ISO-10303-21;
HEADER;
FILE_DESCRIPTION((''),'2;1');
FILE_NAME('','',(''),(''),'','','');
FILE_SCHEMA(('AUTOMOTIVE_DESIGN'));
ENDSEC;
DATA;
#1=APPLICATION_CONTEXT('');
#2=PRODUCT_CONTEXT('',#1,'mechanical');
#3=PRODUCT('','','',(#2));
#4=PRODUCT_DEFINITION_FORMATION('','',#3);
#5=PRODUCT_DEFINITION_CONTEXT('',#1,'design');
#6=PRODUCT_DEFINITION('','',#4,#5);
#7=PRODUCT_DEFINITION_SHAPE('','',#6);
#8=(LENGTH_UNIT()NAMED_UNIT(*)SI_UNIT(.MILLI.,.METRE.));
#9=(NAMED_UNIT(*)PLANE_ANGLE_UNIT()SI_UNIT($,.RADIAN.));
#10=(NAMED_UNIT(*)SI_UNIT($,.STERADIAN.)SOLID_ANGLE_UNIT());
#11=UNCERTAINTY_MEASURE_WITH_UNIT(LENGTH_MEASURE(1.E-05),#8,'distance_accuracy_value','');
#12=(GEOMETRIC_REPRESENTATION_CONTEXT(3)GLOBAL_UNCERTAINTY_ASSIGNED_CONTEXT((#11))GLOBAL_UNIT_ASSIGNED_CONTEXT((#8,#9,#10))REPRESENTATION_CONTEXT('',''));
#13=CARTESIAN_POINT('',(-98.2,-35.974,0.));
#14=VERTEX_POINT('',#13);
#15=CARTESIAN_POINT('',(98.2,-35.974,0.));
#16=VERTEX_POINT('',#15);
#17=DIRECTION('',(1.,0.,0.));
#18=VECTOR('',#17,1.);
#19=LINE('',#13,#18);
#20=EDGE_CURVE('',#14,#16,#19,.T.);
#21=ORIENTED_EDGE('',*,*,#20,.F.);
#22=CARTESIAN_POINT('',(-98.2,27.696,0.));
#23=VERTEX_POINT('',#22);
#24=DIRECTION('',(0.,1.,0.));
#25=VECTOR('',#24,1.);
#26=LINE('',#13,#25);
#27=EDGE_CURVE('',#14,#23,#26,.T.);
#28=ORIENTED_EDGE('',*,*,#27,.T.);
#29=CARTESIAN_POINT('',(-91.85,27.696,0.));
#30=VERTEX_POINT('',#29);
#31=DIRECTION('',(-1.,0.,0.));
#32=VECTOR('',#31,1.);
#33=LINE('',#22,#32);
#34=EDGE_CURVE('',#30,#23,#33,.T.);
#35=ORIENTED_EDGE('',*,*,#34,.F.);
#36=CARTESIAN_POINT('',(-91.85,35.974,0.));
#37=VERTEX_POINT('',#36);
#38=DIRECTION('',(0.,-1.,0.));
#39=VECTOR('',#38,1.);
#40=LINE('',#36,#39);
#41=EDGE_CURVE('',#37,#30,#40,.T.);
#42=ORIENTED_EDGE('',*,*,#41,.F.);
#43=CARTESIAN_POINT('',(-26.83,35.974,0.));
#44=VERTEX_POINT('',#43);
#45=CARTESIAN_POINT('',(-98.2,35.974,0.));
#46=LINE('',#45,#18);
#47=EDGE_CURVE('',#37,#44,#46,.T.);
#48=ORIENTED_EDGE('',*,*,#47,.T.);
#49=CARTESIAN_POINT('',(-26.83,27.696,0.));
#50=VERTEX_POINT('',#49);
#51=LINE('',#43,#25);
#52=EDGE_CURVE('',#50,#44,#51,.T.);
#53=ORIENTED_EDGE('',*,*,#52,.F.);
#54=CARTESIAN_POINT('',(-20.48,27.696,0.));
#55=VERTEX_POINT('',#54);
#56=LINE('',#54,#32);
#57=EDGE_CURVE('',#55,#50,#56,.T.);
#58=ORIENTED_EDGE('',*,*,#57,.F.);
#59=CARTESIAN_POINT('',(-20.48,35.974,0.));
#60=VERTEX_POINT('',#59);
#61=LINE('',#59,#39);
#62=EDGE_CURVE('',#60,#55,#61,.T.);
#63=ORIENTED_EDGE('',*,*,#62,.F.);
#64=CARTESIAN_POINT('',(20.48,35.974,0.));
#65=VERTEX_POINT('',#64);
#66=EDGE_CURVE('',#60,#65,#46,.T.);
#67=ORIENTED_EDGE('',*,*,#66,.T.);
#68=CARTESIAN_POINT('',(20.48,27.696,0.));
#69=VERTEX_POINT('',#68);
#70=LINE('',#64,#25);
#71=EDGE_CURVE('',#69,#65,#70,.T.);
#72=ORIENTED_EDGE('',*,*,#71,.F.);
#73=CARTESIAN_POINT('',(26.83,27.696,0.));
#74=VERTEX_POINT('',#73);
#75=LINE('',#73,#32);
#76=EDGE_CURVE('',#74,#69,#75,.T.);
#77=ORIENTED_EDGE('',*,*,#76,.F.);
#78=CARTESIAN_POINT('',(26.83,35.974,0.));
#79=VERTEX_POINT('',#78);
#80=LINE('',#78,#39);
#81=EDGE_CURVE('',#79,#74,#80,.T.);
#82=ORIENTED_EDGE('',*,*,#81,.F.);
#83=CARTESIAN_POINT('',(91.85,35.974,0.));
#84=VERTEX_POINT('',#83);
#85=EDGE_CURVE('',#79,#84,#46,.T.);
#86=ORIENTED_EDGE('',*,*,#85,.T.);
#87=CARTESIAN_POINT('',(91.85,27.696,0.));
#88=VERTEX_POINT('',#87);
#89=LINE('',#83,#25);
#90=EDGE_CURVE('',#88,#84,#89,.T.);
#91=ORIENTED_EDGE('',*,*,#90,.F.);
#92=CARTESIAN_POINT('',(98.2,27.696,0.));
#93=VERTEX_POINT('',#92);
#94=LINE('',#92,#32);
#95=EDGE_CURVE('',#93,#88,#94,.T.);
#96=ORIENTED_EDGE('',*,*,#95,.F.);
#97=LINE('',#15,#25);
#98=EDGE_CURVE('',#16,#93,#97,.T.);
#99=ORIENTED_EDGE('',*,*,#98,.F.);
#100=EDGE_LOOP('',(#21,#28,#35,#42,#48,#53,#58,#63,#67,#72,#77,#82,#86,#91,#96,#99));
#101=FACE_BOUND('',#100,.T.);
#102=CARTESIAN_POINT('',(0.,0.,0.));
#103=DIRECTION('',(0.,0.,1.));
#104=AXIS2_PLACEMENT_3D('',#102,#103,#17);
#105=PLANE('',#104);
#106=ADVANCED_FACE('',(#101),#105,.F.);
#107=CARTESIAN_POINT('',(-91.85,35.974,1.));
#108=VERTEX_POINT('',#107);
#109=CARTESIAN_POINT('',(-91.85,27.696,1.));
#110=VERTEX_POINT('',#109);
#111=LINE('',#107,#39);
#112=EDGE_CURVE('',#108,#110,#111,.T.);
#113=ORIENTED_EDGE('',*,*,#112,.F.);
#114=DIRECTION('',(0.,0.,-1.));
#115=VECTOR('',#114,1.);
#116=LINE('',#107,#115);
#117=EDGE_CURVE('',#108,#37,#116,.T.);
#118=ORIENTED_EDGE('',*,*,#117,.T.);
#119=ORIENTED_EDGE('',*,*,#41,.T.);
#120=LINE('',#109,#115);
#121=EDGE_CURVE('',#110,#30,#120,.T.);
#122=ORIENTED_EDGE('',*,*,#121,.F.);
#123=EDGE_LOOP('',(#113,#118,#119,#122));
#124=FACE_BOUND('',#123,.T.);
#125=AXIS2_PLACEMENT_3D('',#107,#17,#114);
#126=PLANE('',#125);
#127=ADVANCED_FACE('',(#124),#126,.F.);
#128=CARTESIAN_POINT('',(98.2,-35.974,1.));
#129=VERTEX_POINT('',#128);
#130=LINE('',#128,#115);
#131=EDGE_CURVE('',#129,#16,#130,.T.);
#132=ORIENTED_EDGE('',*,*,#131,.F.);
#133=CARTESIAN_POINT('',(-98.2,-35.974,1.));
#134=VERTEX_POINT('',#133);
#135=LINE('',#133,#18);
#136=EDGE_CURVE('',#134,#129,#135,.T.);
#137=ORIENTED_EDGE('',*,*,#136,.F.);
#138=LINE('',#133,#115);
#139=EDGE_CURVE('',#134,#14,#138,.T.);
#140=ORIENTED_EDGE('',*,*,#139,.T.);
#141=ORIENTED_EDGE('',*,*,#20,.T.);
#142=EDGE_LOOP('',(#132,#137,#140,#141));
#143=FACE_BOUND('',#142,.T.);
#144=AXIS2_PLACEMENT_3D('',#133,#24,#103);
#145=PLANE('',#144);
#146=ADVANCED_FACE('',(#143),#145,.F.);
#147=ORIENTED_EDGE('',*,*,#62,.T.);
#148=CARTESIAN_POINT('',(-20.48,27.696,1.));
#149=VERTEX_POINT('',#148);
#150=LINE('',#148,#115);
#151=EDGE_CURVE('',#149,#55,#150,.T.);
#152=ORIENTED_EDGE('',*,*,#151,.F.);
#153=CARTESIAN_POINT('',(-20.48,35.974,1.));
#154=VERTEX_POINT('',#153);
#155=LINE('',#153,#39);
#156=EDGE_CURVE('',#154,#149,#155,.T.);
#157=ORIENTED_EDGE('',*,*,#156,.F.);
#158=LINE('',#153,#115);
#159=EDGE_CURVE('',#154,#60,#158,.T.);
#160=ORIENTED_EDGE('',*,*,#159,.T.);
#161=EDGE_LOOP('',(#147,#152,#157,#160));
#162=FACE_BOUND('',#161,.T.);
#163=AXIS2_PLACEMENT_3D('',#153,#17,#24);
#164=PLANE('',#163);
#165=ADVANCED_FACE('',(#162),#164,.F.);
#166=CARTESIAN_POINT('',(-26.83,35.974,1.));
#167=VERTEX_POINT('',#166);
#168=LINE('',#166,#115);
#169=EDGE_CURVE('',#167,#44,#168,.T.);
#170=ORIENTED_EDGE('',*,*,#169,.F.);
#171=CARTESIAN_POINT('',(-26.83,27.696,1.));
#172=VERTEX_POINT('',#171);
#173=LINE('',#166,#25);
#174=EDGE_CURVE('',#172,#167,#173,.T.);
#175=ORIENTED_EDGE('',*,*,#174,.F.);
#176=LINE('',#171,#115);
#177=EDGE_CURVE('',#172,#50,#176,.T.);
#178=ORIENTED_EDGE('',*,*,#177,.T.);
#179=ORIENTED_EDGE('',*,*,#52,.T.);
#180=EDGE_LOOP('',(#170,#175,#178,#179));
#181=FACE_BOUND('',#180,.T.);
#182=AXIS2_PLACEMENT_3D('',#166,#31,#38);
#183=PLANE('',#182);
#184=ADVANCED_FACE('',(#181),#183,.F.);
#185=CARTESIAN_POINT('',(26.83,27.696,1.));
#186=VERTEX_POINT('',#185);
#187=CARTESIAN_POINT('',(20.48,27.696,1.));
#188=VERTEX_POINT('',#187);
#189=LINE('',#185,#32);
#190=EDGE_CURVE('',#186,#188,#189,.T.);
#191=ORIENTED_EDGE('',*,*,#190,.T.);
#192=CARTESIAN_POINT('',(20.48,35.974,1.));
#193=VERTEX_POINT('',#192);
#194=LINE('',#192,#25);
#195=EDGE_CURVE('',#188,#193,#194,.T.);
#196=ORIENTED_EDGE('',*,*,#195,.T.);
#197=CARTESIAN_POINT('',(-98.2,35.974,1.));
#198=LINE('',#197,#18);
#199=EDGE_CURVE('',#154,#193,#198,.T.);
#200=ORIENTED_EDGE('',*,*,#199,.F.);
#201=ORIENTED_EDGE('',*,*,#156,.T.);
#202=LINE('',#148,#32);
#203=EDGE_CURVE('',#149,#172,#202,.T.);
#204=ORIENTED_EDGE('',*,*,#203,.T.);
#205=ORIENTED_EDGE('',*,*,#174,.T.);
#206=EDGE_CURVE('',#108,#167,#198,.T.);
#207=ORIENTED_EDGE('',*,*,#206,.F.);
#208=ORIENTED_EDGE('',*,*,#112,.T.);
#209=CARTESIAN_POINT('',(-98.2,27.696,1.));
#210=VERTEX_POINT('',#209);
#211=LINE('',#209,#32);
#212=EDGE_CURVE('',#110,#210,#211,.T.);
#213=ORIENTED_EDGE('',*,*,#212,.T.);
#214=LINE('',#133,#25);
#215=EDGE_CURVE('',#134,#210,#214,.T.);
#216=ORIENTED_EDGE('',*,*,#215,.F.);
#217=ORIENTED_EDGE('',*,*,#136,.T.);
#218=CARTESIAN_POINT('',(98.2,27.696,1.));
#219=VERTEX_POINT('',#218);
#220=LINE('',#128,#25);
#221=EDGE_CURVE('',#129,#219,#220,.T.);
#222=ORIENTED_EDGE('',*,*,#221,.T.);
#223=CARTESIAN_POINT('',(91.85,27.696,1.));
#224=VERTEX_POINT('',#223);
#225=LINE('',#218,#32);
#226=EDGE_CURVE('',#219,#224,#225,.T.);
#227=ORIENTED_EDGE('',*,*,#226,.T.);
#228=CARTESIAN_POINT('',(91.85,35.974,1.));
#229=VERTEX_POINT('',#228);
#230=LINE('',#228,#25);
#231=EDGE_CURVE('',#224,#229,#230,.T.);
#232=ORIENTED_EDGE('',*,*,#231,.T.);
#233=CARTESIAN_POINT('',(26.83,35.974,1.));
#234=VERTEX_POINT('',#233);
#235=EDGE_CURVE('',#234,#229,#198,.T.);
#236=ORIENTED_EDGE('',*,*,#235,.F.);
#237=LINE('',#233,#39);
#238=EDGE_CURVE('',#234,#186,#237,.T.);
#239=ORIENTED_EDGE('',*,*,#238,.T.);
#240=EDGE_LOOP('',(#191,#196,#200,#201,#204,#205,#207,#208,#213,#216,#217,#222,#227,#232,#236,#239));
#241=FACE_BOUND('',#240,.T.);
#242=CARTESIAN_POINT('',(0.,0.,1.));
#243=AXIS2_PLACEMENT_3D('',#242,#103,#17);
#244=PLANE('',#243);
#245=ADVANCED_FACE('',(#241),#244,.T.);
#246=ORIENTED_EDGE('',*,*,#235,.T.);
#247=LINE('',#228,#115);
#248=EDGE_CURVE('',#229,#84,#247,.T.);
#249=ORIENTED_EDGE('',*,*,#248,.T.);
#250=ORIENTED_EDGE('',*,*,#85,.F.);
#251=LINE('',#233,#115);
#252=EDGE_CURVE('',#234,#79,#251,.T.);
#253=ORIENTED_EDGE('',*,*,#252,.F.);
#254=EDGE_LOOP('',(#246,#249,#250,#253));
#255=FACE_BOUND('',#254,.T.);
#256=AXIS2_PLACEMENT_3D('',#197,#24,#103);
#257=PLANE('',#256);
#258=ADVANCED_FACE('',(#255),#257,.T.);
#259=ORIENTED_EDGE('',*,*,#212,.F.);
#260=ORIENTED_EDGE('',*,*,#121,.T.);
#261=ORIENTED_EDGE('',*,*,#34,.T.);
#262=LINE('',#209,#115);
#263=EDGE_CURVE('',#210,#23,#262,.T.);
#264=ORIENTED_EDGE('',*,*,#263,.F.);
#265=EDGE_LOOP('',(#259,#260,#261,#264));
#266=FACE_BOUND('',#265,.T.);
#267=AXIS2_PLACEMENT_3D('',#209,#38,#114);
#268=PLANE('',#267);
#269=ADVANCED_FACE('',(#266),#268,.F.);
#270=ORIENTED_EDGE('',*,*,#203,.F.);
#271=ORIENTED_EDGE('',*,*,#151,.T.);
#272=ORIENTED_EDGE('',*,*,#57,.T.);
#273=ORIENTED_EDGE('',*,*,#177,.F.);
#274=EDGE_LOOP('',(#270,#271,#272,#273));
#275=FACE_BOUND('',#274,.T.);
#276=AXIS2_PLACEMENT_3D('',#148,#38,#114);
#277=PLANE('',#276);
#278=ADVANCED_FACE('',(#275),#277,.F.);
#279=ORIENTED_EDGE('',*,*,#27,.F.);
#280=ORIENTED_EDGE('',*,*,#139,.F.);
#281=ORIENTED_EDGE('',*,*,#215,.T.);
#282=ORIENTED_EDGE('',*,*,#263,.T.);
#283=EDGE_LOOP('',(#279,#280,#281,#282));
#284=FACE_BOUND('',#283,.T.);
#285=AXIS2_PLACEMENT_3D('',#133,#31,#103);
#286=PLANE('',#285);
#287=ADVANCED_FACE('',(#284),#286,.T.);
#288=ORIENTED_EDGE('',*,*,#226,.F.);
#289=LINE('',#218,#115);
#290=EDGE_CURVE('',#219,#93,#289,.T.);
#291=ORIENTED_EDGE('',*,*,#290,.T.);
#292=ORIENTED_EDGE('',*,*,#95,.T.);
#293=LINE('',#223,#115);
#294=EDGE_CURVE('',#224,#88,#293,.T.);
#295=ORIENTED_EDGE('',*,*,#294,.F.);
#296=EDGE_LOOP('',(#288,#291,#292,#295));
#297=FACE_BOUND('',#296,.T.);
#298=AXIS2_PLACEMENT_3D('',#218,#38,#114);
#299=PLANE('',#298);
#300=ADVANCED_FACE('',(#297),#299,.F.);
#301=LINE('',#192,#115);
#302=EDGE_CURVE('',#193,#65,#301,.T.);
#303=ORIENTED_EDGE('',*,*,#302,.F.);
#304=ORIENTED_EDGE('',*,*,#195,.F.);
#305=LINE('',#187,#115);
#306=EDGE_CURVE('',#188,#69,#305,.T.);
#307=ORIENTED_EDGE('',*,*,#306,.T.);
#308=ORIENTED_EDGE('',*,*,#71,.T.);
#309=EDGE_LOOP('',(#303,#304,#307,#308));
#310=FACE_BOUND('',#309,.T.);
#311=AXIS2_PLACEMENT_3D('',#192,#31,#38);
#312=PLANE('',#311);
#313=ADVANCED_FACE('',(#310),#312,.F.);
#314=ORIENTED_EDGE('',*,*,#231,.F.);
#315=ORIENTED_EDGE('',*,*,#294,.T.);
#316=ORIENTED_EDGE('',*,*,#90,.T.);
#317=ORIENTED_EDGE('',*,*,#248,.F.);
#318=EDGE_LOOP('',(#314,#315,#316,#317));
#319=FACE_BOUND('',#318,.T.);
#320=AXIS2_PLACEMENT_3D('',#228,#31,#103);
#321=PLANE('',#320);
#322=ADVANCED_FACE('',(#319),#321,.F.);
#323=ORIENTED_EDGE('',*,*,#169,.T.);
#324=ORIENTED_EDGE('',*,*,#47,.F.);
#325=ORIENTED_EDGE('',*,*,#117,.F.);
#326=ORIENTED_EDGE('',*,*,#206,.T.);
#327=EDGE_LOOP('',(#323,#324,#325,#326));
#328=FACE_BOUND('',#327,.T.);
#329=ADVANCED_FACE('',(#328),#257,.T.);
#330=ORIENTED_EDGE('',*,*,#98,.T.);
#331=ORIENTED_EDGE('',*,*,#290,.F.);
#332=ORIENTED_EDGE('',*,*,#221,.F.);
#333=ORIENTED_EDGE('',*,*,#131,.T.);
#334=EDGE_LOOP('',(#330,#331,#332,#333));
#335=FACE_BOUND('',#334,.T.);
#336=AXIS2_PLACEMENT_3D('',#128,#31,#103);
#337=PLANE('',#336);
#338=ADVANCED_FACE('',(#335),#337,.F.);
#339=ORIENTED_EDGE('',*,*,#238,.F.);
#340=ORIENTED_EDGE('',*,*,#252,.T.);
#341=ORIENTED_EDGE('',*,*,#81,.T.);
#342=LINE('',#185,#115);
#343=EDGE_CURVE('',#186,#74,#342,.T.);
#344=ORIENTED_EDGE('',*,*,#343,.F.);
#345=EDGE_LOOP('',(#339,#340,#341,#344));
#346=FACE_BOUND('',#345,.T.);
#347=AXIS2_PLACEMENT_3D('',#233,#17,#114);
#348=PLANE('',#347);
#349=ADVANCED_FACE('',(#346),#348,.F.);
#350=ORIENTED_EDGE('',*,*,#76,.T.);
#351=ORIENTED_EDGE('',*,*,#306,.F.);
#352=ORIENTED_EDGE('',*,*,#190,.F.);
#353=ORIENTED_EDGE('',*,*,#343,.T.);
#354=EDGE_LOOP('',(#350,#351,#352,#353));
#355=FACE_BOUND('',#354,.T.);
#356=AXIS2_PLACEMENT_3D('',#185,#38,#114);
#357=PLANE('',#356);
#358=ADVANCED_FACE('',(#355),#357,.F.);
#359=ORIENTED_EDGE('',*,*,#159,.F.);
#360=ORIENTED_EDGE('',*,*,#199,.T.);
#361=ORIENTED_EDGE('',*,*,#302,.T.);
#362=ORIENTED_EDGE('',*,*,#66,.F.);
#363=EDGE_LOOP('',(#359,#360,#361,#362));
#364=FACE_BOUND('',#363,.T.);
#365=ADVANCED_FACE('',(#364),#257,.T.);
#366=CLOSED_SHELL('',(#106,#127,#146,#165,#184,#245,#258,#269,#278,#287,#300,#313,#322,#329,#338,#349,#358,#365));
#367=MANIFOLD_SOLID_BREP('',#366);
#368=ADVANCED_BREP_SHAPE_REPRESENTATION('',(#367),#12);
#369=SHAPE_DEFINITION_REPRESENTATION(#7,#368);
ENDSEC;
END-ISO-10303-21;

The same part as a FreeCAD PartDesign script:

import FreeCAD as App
import Part
import Sketcher
from FreeCAD import Vector

doc = App.newDocument("Part")
params = doc.addObject("Spreadsheet::Sheet", "Params")
for row, (alias, value) in enumerate([
    ("sketch1_width", "196.4 mm"),
    ("pad1_length", "1 mm"),
    ("sketch2_width", "6.35 mm"),
], start=1):
    params.set(f"A{row}", alias)
    params.set(f"B{row}", "=" + value)
    params.setAlias(f"B{row}", alias)

body = doc.addObject("PartDesign::Body", "Body")

# Sketch on XY plane
sketch1 = body.newObject("Sketcher::SketchObject", "Sketch")
sketch1.AttachmentSupport = (doc.getObject("XY_Plane"), [""])
sketch1.MapMode = "FlatFace"
sketch1.addGeometry([
    Part.LineSegment(Vector(-98.2, 35.974, 0), Vector(-98.2, -35.974, 0)),
    Part.LineSegment(Vector(-98.2, -35.974, 0), Vector(98.2, -35.974, 0)),
    Part.LineSegment(Vector(98.2, -35.974, 0), Vector(98.2, 35.974, 0)),
    Part.LineSegment(Vector(98.2, 35.974, 0), Vector(-98.2, 35.974, 0)),
], False)
sketch1.addConstraint([
    Sketcher.Constraint("Coincident", 0, 2, 1, 1),
    Sketcher.Constraint("Coincident", 1, 2, 2, 1),
    Sketcher.Constraint("Coincident", 2, 2, 3, 1),
    Sketcher.Constraint("Coincident", 3, 2, 0, 1),
    Sketcher.Constraint("Vertical", 0),
    Sketcher.Constraint("Horizontal", 1),
    Sketcher.Constraint("Vertical", 2),
    Sketcher.Constraint("Horizontal", 3),
    Sketcher.Constraint("Symmetric", 0, 2, 2, 2, -1, 1),
    Sketcher.Constraint("DistanceX", 1, 1, 1, 2, 196.4),
    Sketcher.Constraint("DistanceY", 0, 2, 0, 1, 71.948),
])
sketch1.setExpression("Constraints[9]", "Params.sketch1_width")
pad1 = body.newObject("PartDesign::Pad", "Pad")
pad1.Profile = sketch1
pad1.setExpression("Length", "Params.pad1_length")

# Sketch on XY plane
sketch2 = body.newObject("Sketcher::SketchObject", "Sketch001")
sketch2.AttachmentSupport = (doc.getObject("XY_Plane"), [""])
sketch2.MapMode = "FlatFace"
sketch2.addGeometry([
    Part.LineSegment(Vector(98.2, 35.974, 0), Vector(98.2, 27.696, 0)),  # 0
    Part.LineSegment(Vector(98.2, 27.696, 0), Vector(91.85, 27.696, 0)),  # 1
    Part.LineSegment(Vector(91.85, 27.696, 0), Vector(91.85, 35.974, 0)),  # 2
    Part.LineSegment(Vector(91.85, 35.974, 0), Vector(98.2, 35.974, 0)),  # 3
    Part.LineSegment(Vector(26.83, 35.974, 0), Vector(26.83, 27.696, 0)),  # 4
    Part.LineSegment(Vector(26.83, 27.696, 0), Vector(20.48, 27.696, 0)),  # 5
    Part.LineSegment(Vector(20.48, 27.696, 0), Vector(20.48, 35.974, 0)),  # 6
    Part.LineSegment(Vector(20.48, 35.974, 0), Vector(26.83, 35.974, 0)),  # 7
    Part.LineSegment(Vector(-20.48, 35.974, 0), Vector(-20.48, 27.696, 0)),  # 8
    Part.LineSegment(Vector(-20.48, 27.696, 0), Vector(-26.83, 27.696, 0)),  # 9
    Part.LineSegment(Vector(-26.83, 27.696, 0), Vector(-26.83, 35.974, 0)),  # 10
    Part.LineSegment(Vector(-26.83, 35.974, 0), Vector(-20.48, 35.974, 0)),  # 11
    Part.LineSegment(Vector(-91.85, 35.974, 0), Vector(-91.85, 27.696, 0)),  # 12
    Part.LineSegment(Vector(-91.85, 27.696, 0), Vector(-98.2, 27.696, 0)),  # 13
    Part.LineSegment(Vector(-98.2, 27.696, 0), Vector(-98.2, 35.974, 0)),  # 14
    Part.LineSegment(Vector(-98.2, 35.974, 0), Vector(-91.85, 35.974, 0)),  # 15
], False)
sketch2.addConstraint([
    Sketcher.Constraint("Coincident", 0, 2, 1, 1),
    Sketcher.Constraint("Coincident", 1, 2, 2, 1),
    Sketcher.Constraint("Coincident", 2, 2, 3, 1),
    Sketcher.Constraint("Coincident", 3, 2, 0, 1),
    Sketcher.Constraint("Coincident", 4, 2, 5, 1),
    Sketcher.Constraint("Coincident", 5, 2, 6, 1),
    Sketcher.Constraint("Coincident", 6, 2, 7, 1),
    Sketcher.Constraint("Coincident", 7, 2, 4, 1),
    Sketcher.Constraint("Coincident", 8, 2, 9, 1),
    Sketcher.Constraint("Coincident", 9, 2, 10, 1),
    Sketcher.Constraint("Coincident", 10, 2, 11, 1),
    Sketcher.Constraint("Coincident", 11, 2, 8, 1),
    Sketcher.Constraint("Coincident", 12, 2, 13, 1),
    Sketcher.Constraint("Coincident", 13, 2, 14, 1),
    Sketcher.Constraint("Coincident", 14, 2, 15, 1),
    Sketcher.Constraint("Coincident", 15, 2, 12, 1),
    Sketcher.Constraint("Vertical", 0),
    Sketcher.Constraint("Horizontal", 1),
    Sketcher.Constraint("Vertical", 2),
    Sketcher.Constraint("Horizontal", 3),
    Sketcher.Constraint("Vertical", 4),
    Sketcher.Constraint("Horizontal", 5),
    Sketcher.Constraint("Vertical", 6),
    Sketcher.Constraint("Horizontal", 7),
    Sketcher.Constraint("Vertical", 8),
    Sketcher.Constraint("Horizontal", 9),
    Sketcher.Constraint("Vertical", 10),
    Sketcher.Constraint("Horizontal", 11),
    Sketcher.Constraint("Vertical", 12),
    Sketcher.Constraint("Horizontal", 13),
    Sketcher.Constraint("Vertical", 14),
    Sketcher.Constraint("Horizontal", 15),
    Sketcher.Constraint("Symmetric", 5, 2, 8, 2, -2),
    Sketcher.Constraint("Symmetric", 7, 2, 10, 2, -2),
    Sketcher.Constraint("Symmetric", 1, 2, 12, 2, -2),
    Sketcher.Constraint("Symmetric", 3, 2, 14, 2, -2),
    Sketcher.Constraint("Horizontal", 1, 2, 4, 2),
    Sketcher.Constraint("Horizontal", 3, 2, 6, 2),
    Sketcher.Constraint("Equal", 3, 5),
    Sketcher.Constraint("DistanceX", 1, 2, 1, 1, 6.35),
    Sketcher.Constraint("DistanceX", -1, 1, 0, 2, 98.2),
    Sketcher.Constraint("DistanceY", 0, 2, 0, 1, 8.278),
    Sketcher.Constraint("DistanceX", -1, 1, 4, 2, 26.83),
    Sketcher.Constraint("DistanceY", -1, 1, 0, 2, 27.696),
])
sketch2.setExpression("Constraints[39]", "Params.sketch2_width")
pocket1 = body.newObject("PartDesign::Pocket", "Pocket")
pocket1.Profile = sketch2
pocket1.Type = "ThroughAll"
pocket1.Reversed = True

doc.recompute()
